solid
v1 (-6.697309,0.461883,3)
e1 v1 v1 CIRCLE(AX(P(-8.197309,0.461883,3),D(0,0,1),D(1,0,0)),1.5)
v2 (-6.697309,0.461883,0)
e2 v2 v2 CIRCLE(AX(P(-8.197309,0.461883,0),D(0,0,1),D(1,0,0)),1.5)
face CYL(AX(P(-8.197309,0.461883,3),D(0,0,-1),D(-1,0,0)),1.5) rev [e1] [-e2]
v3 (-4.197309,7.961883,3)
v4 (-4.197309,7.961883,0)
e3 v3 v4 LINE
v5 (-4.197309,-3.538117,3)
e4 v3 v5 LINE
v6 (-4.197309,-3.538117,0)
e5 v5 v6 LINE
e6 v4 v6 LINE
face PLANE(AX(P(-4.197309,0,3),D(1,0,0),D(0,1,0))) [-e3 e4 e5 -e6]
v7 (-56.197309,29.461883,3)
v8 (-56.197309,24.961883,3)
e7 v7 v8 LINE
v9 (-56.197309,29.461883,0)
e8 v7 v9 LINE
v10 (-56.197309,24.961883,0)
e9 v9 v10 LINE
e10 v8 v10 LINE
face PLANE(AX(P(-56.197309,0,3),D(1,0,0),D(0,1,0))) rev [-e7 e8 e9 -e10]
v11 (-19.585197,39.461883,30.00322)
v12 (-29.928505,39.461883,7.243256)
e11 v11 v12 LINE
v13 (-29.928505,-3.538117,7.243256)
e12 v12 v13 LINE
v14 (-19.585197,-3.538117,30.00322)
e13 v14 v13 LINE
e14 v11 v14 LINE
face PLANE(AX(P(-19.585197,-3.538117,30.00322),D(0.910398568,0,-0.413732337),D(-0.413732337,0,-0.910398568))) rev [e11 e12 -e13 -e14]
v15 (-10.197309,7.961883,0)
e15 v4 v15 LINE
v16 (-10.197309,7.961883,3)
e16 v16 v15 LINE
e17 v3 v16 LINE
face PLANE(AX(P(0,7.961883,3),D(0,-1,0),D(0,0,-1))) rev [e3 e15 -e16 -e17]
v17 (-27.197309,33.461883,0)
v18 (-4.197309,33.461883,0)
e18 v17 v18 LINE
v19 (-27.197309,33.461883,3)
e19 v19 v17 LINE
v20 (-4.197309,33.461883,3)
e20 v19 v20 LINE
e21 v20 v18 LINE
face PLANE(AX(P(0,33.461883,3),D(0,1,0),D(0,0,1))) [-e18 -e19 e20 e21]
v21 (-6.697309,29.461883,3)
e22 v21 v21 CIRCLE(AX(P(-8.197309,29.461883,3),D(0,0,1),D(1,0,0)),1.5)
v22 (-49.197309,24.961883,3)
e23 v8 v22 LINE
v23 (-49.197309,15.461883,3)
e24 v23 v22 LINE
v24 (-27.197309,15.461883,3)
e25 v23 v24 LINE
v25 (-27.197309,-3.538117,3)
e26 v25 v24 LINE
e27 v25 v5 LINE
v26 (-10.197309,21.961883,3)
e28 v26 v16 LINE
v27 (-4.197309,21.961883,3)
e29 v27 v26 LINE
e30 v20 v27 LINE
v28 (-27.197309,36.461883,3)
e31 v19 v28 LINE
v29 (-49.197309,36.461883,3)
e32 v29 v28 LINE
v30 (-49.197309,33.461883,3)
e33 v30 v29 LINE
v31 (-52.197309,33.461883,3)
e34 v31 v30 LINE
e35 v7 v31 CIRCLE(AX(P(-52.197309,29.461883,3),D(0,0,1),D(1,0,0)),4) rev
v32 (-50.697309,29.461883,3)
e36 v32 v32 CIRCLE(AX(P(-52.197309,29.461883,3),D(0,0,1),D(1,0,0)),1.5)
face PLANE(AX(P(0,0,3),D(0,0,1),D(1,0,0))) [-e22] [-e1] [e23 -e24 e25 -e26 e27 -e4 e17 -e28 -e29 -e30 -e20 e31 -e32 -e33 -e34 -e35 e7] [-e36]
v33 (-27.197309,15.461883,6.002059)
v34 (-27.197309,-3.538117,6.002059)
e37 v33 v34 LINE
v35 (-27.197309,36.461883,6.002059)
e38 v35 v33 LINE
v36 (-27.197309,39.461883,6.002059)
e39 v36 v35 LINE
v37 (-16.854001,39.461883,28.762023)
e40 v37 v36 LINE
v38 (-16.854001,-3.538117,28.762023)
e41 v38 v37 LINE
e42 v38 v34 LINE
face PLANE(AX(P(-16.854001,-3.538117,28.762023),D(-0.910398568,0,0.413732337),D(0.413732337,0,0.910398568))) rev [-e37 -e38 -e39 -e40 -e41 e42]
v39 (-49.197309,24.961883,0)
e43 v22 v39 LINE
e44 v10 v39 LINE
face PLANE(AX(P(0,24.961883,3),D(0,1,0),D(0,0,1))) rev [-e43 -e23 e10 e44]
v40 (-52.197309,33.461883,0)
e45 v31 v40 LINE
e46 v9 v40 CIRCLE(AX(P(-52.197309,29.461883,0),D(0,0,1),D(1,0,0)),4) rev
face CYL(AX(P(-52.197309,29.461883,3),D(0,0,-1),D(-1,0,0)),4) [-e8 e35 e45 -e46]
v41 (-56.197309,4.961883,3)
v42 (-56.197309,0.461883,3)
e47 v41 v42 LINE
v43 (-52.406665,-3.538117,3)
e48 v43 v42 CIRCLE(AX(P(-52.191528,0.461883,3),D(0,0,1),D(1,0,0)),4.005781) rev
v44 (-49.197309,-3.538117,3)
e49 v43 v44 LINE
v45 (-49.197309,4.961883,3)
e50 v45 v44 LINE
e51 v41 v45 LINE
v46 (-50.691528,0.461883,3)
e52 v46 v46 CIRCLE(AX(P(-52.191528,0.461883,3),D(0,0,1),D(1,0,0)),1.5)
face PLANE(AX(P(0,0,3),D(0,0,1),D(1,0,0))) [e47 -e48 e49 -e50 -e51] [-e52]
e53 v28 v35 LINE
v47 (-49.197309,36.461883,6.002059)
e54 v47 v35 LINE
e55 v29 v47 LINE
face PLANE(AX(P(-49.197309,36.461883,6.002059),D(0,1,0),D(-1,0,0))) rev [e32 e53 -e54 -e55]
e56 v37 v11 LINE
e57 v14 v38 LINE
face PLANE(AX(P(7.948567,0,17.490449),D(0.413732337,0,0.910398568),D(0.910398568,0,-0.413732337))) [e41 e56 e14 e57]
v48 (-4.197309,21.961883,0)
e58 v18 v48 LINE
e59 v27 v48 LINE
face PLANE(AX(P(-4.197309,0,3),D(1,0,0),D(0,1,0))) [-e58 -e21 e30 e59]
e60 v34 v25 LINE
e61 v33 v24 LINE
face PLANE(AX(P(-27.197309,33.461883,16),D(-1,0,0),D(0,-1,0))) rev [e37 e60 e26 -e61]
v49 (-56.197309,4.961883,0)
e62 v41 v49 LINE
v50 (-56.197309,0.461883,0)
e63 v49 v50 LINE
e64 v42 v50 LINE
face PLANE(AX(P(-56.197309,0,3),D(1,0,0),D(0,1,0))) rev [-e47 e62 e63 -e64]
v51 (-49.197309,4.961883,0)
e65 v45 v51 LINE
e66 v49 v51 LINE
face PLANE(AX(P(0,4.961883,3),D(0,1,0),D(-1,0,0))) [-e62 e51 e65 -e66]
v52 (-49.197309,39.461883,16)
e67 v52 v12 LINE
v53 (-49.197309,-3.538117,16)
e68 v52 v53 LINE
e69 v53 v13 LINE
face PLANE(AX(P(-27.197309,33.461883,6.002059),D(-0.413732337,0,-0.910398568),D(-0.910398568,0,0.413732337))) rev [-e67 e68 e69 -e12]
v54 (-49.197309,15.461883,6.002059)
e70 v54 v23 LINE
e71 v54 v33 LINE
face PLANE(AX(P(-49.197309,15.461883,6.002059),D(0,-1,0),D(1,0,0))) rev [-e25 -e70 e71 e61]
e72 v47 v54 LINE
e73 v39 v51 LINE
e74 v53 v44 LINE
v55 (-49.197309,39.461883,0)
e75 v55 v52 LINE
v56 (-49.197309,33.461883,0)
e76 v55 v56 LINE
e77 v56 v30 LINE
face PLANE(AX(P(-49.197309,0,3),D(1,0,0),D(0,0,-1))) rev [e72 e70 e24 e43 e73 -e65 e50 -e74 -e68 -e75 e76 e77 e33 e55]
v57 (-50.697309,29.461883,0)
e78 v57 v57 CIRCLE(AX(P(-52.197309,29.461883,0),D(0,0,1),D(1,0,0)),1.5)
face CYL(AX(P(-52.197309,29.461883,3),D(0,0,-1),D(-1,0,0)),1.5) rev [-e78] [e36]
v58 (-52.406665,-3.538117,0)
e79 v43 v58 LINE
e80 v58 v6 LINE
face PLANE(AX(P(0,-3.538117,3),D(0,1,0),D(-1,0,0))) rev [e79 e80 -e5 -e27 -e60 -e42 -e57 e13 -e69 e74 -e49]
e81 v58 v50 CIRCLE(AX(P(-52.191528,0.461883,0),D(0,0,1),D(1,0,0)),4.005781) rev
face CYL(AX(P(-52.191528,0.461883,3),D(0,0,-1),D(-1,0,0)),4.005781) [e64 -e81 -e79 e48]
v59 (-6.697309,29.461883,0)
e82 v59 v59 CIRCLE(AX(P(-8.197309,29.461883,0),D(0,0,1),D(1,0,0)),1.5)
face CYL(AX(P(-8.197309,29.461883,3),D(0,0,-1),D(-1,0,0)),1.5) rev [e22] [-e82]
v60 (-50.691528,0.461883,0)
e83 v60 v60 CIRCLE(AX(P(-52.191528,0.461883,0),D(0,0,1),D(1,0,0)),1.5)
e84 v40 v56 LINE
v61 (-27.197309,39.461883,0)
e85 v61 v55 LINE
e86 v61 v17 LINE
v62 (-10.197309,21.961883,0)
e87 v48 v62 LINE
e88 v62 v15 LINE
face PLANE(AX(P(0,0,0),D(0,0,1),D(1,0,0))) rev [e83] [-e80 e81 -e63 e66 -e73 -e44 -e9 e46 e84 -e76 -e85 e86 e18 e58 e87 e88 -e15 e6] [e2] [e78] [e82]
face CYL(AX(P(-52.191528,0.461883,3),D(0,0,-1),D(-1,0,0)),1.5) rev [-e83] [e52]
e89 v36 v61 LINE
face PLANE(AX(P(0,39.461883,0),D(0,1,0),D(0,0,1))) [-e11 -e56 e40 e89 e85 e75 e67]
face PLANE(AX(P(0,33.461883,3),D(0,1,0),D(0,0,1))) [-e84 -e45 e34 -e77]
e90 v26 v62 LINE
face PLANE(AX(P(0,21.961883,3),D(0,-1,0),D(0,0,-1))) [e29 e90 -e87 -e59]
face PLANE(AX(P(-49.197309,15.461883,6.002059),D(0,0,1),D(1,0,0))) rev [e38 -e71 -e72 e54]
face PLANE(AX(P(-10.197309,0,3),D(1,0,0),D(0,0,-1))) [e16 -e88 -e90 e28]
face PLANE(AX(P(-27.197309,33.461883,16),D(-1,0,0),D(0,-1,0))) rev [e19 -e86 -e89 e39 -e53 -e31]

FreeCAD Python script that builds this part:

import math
import FreeCAD as App
import Part
import Sketcher


def add_polygon(sketch, points):
    """Adds a closed chain of lines whose ends are joined by coincident constraints."""
    first, n = sketch.GeometryCount, len(points)
    for a, b in zip(points, points[1:] + points[:1]):
        sketch.addGeometry(Part.LineSegment(App.Vector(*a, 0), App.Vector(*b, 0)), False)
    for i in range(n):
        sketch.addConstraint(Sketcher.Constraint("Coincident", first + i, 2, first + (i + 1) % n, 1))

doc = App.newDocument("Part")
body = doc.addObject("PartDesign::Body", "Body")

# Sketch on XY plane
sketch1 = body.newObject("Sketcher::SketchObject", "Sketch")
sketch1.AttachmentSupport = (doc.getObject("XY_Plane"), [""])
sketch1.MapMode = "FlatFace"
sketch1.addGeometry(Part.LineSegment(App.Vector(-4.2, 33.5, 0), App.Vector(-52.2, 33.5, 0)), False)
sketch1.addGeometry(Part.ArcOfCircle(Part.Circle(App.Vector(-52.2, 29.5, 0), App.Vector(0, 0, 1), 4), math.radians(90), math.radians(180)), False)
sketch1.addGeometry(Part.LineSegment(App.Vector(-56.2, 29.5, 0), App.Vector(-56.2, 25, 0)), False)
sketch1.addGeometry(Part.LineSegment(App.Vector(-56.2, 25, 0), App.Vector(-49.2, 25, 0)), False)
sketch1.addGeometry(Part.LineSegment(App.Vector(-49.2, 25, 0), App.Vector(-49.2, 5, 0)), False)
sketch1.addGeometry(Part.LineSegment(App.Vector(-49.2, 5, 0), App.Vector(-56.2, 5, 0)), False)
sketch1.addGeometry(Part.LineSegment(App.Vector(-56.2, 5, 0), App.Vector(-56.2, 0.5, 0)), False)
sketch1.addGeometry(Part.ArcOfCircle(Part.Circle(App.Vector(-52.2, 0.5, 0), App.Vector(0, 0, 1), 4), math.radians(180), math.radians(267)), False)
sketch1.addGeometry(Part.LineSegment(App.Vector(-52.4, -3.5, 0), App.Vector(-4.2, -3.5, 0)), False)
sketch1.addGeometry(Part.LineSegment(App.Vector(-4.2, -3.5, 0), App.Vector(-4.2, 8, 0)), False)
sketch1.addGeometry(Part.LineSegment(App.Vector(-4.2, 8, 0), App.Vector(-10.2, 8, 0)), False)
sketch1.addGeometry(Part.LineSegment(App.Vector(-10.2, 8, 0), App.Vector(-10.2, 22, 0)), False)
sketch1.addGeometry(Part.LineSegment(App.Vector(-10.2, 22, 0), App.Vector(-4.2, 22, 0)), False)
sketch1.addGeometry(Part.LineSegment(App.Vector(-4.2, 22, 0), App.Vector(-4.2, 33.5, 0)), False)
sketch1.addGeometry(Part.Circle(App.Vector(-52.2, 0.5, 0), App.Vector(0, 0, 1), 1.5), False)
sketch1.addGeometry(Part.Circle(App.Vector(-8.2, 0.5, 0), App.Vector(0, 0, 1), 1.5), False)
sketch1.addGeometry(Part.Circle(App.Vector(-52.2, 29.5, 0), App.Vector(0, 0, 1), 1.5), False)
sketch1.addGeometry(Part.Circle(App.Vector(-8.2, 29.5, 0), App.Vector(0, 0, 1), 1.5), False)
sketch1.addConstraint(Sketcher.Constraint("Tangent", 0, 2, 1, 1))
sketch1.addConstraint(Sketcher.Constraint("Tangent", 1, 2, 2, 1))
sketch1.addConstraint(Sketcher.Constraint("Coincident", 2, 2, 3, 1))
sketch1.addConstraint(Sketcher.Constraint("Coincident", 3, 2, 4, 1))
sketch1.addConstraint(Sketcher.Constraint("Coincident", 4, 2, 5, 1))
sketch1.addConstraint(Sketcher.Constraint("Coincident", 5, 2, 6, 1))
sketch1.addConstraint(Sketcher.Constraint("Tangent", 6, 2, 7, 1))
sketch1.addConstraint(Sketcher.Constraint("Coincident", 7, 2, 8, 1))
sketch1.addConstraint(Sketcher.Constraint("Coincident", 8, 2, 9, 1))
sketch1.addConstraint(Sketcher.Constraint("Coincident", 9, 2, 10, 1))
sketch1.addConstraint(Sketcher.Constraint("Coincident", 10, 2, 11, 1))
sketch1.addConstraint(Sketcher.Constraint("Coincident", 11, 2, 12, 1))
sketch1.addConstraint(Sketcher.Constraint("Coincident", 12, 2, 13, 1))
sketch1.addConstraint(Sketcher.Constraint("Coincident", 13, 2, 0, 1))
sketch1.addConstraint(Sketcher.Constraint("Horizontal", 0))
sketch1.addConstraint(Sketcher.Constraint("Vertical", 2))
sketch1.addConstraint(Sketcher.Constraint("Horizontal", 3))
sketch1.addConstraint(Sketcher.Constraint("Vertical", 4))
sketch1.addConstraint(Sketcher.Constraint("Horizontal", 5))
sketch1.addConstraint(Sketcher.Constraint("Vertical", 6))
sketch1.addConstraint(Sketcher.Constraint("Horizontal", 8))
sketch1.addConstraint(Sketcher.Constraint("Vertical", 9))
sketch1.addConstraint(Sketcher.Constraint("Horizontal", 10))
sketch1.addConstraint(Sketcher.Constraint("Vertical", 11))
sketch1.addConstraint(Sketcher.Constraint("Horizontal", 12))
sketch1.addConstraint(Sketcher.Constraint("Vertical", 13))
sketch1.addConstraint(Sketcher.Constraint("Coincident", 14, 3, 7, 3))
sketch1.addConstraint(Sketcher.Constraint("Coincident", 16, 3, 1, 3))
sketch1.addConstraint(Sketcher.Constraint("Equal", 14, 15))
sketch1.addConstraint(Sketcher.Constraint("Equal", 15, 16))
sketch1.addConstraint(Sketcher.Constraint("Equal", 16, 17))
sketch1.addConstraint(Sketcher.Constraint("Horizontal", 14, 3, 15, 3))
sketch1.addConstraint(Sketcher.Constraint("Horizontal", 16, 3, 17, 3))
sketch1.addConstraint(Sketcher.Constraint("Vertical", 15, 3, 17, 3))
sketch1.addConstraint(Sketcher.Constraint("Vertical", 2, 2, 5, 2))
sketch1.addConstraint(Sketcher.Constraint("Vertical", 9, 2, 12, 2))
sketch1.addConstraint(Sketcher.Constraint("Equal", 2, 6))
sketch1.addConstraint(Sketcher.Constraint("Equal", 9, 13))
sketch1.addConstraint(Sketcher.Constraint("Diameter", 14, 3.0))
sketch1.addConstraint(Sketcher.Constraint("Radius", 1, 4.0))
sketch1.addConstraint(Sketcher.Constraint("DistanceX", 0, 2, 0, 1, 48.0))
sketch1.addConstraint(Sketcher.Constraint("DistanceX", 3, 1, 3, 2, 7.0))
sketch1.addConstraint(Sketcher.Constraint("DistanceX", 10, 2, 10, 1, 6.0))
sketch1.addConstraint(Sketcher.Constraint("DistanceY", 4, 2, 4, 1, 20.0))
sketch1.addConstraint(Sketcher.Constraint("DistanceY", 11, 1, 11, 2, 14.0))
sketch1.addConstraint(Sketcher.Constraint("DistanceY", 2, 2, 2, 1, 4.5))
sketch1.addConstraint(Sketcher.Constraint("DistanceY", 9, 1, 9, 2, 11.5))
sketch1.addConstraint(Sketcher.Constraint("DistanceX", 1, 3, 15, 3, 44.0))
sketch1.addConstraint(Sketcher.Constraint("Radius", 7, 4.005781))
sketch1.addConstraint(Sketcher.Constraint("DistanceX", 1, 3, -1, 1, 52.197309))
sketch1.addConstraint(Sketcher.Constraint("DistanceY", -1, 1, 1, 3, 29.461883))
pad1 = body.newObject("PartDesign::Pad", "Pad")
pad1.Profile = sketch1
pad1.Length = 3

# Sketch on XY plane
sketch2 = body.newObject("Sketcher::SketchObject", "Sketch001")
sketch2.AttachmentSupport = (doc.getObject("XY_Plane"), [""])
sketch2.MapMode = "FlatFace"
sketch2.AttachmentOffset = App.Placement(App.Vector(0, 0, 3), App.Rotation())
add_polygon(sketch2, [(-49, 33), (-49, -4), (-27, -4), (-27, 33)])  # lines 0-3
sketch2.addConstraint(Sketcher.Constraint("Vertical", 0))
sketch2.addConstraint(Sketcher.Constraint("Horizontal", 1))
sketch2.addConstraint(Sketcher.Constraint("Vertical", 2))
sketch2.addConstraint(Sketcher.Constraint("Horizontal", 3))
sketch2.addConstraint(Sketcher.Constraint("DistanceX", 1, 1, 1, 2, 22.0))
sketch2.addConstraint(Sketcher.Constraint("DistanceY", 0, 2, 0, 1, 37.0))
sketch2.addConstraint(Sketcher.Constraint("DistanceX", 0, 2, -1, 1, 49.197309))
sketch2.addConstraint(Sketcher.Constraint("DistanceY", 0, 2, -1, 1, 3.538117))
pad2 = body.newObject("PartDesign::Pad", "Pad001")
pad2.Profile = sketch2
pad2.Length = 13

# Sketch on XZ plane
sketch3 = body.newObject("Sketcher::SketchObject", "Sketch002")
sketch3.AttachmentSupport = (doc.getObject("XZ_Plane"), [""])
sketch3.MapMode = "FlatFace"
sketch3.AttachmentOffset = App.Placement(App.Vector(0, 0, -33.461883), App.Rotation())
add_polygon(sketch3, [(-27, 6), (-27, 16), (-49, 16)])  # lines 0-2
sketch3.addConstraint(Sketcher.Constraint("Vertical", 0))
sketch3.addConstraint(Sketcher.Constraint("Horizontal", 1))
sketch3.addConstraint(Sketcher.Constraint("DistanceX", 1, 2, 1, 1, 22.0))
sketch3.addConstraint(Sketcher.Constraint("DistanceY", -1, 1, 0, 2, 16.0))
sketch3.addConstraint(Sketcher.Constraint("DistanceY", 0, 1, 0, 2, 9.997941))
sketch3.addConstraint(Sketcher.Constraint("DistanceX", 0, 2, -1, 1, 27.197309))
pocket1 = body.newObject("PartDesign::Pocket", "Pocket")
pocket1.Profile = sketch3
pocket1.Length = 37
pocket1.Reversed = True

# Sketch on XZ plane
sketch4 = body.newObject("Sketcher::SketchObject", "Sketch003")
sketch4.AttachmentSupport = (doc.getObject("XZ_Plane"), [""])
sketch4.MapMode = "FlatFace"
sketch4.AttachmentOffset = App.Placement(App.Vector(0, 0, -33.461883), App.Rotation())
add_polygon(sketch4, [(-49, 16), (-27, 6), (-27, 0), (-49, 0)])  # lines 0-3
sketch4.addConstraint(Sketcher.Constraint("Vertical", 1))
sketch4.addConstraint(Sketcher.Constraint("Horizontal", 2))
sketch4.addConstraint(Sketcher.Constraint("Vertical", 3))
sketch4.addConstraint(Sketcher.Constraint("PointOnObject", 1, 2, -1))
sketch4.addConstraint(Sketcher.Constraint("DistanceX", 2, 2, 2, 1, 22.0))
sketch4.addConstraint(Sketcher.Constraint("DistanceY", 3, 1, 3, 2, 16.0))
sketch4.addConstraint(Sketcher.Constraint("DistanceY", 1, 2, 1, 1, 6.002059))
sketch4.addConstraint(Sketcher.Constraint("DistanceX", 0, 2, -1, 1, 27.197309))
pad3 = body.newObject("PartDesign::Pad", "Pad002")
pad3.Profile = sketch4
pad3.Length = 6
pad3.Reversed = True

# Sketch on YZ plane
sketch5 = body.newObject("Sketcher::SketchObject", "Sketch004")
sketch5.AttachmentSupport = (doc.getObject("YZ_Plane"), [""])
sketch5.MapMode = "FlatFace"
sketch5.AttachmentOffset = App.Placement(App.Vector(0, 0, -27.197309), App.Rotation())
add_polygon(sketch5, [(36.5, 6), (15.5, 6), (15.5, 3), (36.5, 3)])  # lines 0-3
sketch5.addConstraint(Sketcher.Constraint("Horizontal", 0))
sketch5.addConstraint(Sketcher.Constraint("Vertical", 1))
sketch5.addConstraint(Sketcher.Constraint("Horizontal", 2))
sketch5.addConstraint(Sketcher.Constraint("Vertical", 3))
sketch5.addConstraint(Sketcher.Constraint("DistanceX", 0, 2, 0, 1, 21.0))
sketch5.addConstraint(Sketcher.Constraint("DistanceY", -1, 1, 1, 2, 3.0))
sketch5.addConstraint(Sketcher.Constraint("DistanceY", 1, 2, 1, 1, 3.002059))
sketch5.addConstraint(Sketcher.Constraint("DistanceX", -1, 1, 0, 2, 15.461883))
pocket2 = body.newObject("PartDesign::Pocket", "Pocket001")
pocket2.Profile = sketch5
pocket2.Length = 22.000001

# Sketch on an angled plane
sketch6 = body.newObject("Sketcher::SketchObject", "Sketch005")
sketch6.Placement = App.Placement(App.Vector(-2.394741, 0, -5.269515), App.Rotation(App.Vector(0.910398568, 0, -0.413732337), App.Vector(0, 0.999999999, 0), App.Vector(0.413732337, 0, 0.910398568), "ZXY"))
add_polygon(sketch6, [(-30.2, 39.5), (-30.2, -3.5), (-27.2, -3.5), (-27.2, 39.5)])  # lines 0-3
sketch6.addConstraint(Sketcher.Constraint("Vertical", 0))
sketch6.addConstraint(Sketcher.Constraint("Horizontal", 1))
sketch6.addConstraint(Sketcher.Constraint("Vertical", 2))
sketch6.addConstraint(Sketcher.Constraint("Horizontal", 3))
sketch6.addConstraint(Sketcher.Constraint("DistanceX", 1, 1, 1, 2, 3.0))
sketch6.addConstraint(Sketcher.Constraint("DistanceY", 0, 2, 0, 1, 43.0))
sketch6.addConstraint(Sketcher.Constraint("DistanceX", 0, 2, -1, 1, 30.243637))
sketch6.addConstraint(Sketcher.Constraint("DistanceY", 0, 2, -1, 1, 3.538117))
pad4 = body.newObject("PartDesign::Pad", "Pad003")
pad4.Profile = sketch6
pad4.Length = 25

doc.recompute()
